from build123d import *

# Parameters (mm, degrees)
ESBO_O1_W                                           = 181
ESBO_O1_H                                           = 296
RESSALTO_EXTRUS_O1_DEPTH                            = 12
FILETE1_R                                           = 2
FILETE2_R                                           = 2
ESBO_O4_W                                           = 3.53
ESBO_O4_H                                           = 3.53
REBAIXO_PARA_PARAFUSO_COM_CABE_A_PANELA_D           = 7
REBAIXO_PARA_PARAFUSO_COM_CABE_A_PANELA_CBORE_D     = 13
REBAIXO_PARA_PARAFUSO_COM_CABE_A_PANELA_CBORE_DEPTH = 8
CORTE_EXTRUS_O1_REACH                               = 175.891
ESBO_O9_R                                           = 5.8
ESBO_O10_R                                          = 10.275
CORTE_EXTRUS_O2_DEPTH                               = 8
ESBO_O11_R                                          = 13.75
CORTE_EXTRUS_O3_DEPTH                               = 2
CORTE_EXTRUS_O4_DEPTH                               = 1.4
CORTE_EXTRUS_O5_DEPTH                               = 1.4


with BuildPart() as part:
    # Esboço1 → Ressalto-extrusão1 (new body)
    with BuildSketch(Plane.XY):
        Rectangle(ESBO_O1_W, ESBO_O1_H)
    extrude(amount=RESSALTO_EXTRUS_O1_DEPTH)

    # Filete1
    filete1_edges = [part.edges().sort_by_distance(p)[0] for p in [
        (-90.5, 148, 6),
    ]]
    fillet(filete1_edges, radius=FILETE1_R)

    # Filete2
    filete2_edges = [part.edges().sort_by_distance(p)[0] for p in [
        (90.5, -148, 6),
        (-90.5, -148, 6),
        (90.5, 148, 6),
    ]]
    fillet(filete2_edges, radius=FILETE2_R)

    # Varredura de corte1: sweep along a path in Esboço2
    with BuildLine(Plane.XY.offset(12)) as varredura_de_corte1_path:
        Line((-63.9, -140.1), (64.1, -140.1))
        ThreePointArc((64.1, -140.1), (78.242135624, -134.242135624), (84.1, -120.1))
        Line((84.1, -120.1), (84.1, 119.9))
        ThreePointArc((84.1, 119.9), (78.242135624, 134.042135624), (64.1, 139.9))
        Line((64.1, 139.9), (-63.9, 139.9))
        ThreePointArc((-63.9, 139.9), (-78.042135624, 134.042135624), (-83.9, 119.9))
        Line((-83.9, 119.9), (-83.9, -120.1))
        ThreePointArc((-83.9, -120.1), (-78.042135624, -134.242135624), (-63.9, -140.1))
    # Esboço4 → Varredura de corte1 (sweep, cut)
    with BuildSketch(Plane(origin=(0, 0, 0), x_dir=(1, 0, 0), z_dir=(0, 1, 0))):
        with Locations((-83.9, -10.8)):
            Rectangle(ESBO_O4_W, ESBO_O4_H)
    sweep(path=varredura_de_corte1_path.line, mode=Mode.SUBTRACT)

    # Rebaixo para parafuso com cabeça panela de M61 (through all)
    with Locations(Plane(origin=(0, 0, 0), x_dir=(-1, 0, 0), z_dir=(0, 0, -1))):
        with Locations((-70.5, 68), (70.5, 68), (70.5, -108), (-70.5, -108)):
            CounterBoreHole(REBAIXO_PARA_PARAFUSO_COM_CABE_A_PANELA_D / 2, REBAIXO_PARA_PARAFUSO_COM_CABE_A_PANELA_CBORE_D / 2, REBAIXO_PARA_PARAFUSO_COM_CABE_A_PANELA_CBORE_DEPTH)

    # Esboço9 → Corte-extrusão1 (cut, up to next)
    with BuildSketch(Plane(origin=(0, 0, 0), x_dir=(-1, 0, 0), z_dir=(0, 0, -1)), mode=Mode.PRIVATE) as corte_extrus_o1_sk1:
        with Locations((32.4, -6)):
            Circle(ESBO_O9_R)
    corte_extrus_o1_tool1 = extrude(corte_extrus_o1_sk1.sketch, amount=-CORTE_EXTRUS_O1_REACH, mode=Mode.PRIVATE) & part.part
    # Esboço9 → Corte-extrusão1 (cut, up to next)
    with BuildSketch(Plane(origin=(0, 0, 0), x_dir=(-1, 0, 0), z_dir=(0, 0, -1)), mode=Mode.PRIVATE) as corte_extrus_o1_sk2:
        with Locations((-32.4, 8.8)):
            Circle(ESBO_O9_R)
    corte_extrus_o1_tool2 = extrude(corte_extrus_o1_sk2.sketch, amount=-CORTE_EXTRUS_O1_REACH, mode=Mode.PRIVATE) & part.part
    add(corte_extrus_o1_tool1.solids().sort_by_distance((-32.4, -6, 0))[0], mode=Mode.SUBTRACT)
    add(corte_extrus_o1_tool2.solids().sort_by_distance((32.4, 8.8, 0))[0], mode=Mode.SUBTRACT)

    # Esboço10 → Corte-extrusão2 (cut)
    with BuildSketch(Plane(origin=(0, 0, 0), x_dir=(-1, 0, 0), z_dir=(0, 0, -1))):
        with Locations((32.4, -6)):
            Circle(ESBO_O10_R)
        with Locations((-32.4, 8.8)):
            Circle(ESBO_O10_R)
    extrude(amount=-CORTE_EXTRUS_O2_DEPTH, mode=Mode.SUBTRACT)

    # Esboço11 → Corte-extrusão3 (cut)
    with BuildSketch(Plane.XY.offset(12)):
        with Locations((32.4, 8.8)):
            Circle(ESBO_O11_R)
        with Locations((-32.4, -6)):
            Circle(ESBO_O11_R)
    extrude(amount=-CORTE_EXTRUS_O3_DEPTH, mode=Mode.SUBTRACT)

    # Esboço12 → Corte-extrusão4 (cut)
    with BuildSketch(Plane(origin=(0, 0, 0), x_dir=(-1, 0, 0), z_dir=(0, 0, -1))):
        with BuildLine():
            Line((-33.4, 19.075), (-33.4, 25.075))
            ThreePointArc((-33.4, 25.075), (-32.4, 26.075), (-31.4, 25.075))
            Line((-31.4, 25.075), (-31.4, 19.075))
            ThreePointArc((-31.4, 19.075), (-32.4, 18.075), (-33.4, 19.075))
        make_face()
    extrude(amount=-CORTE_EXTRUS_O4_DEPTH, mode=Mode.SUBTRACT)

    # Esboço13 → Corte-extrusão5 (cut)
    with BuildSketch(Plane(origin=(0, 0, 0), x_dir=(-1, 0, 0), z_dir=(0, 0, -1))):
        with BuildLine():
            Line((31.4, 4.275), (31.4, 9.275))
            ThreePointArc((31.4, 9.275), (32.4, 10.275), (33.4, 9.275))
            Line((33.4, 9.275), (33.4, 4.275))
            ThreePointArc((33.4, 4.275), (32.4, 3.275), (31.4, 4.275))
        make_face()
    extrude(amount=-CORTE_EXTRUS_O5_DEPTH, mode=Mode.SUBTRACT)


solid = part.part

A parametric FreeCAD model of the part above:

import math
import FreeCAD as App
import Part
import Sketcher

V = App.Vector
Q = App.Units.Quantity


def edges_at(feature, points):
    """Names of the edges that pass closest to the given points."""
    edges = feature.Shape.Edges
    near = lambda p: min(range(len(edges)), key=lambda i: edges[i].distToShape(Part.Vertex(*p))[0])
    return sorted({f"Edge{near(p) + 1}" for p in points})

doc = App.newDocument("Part")
body = doc.addObject("PartDesign::Body", "Body")

sketch1 = body.newObject("Sketcher::SketchObject", "Sketch")
sketch1.AttachmentSupport = (doc.getObject("XY_Plane"), [""])
sketch1.MapMode = "FlatFace"
sketch1.addGeometry(Part.LineSegment(V(-90, 148, 0), V(-90, -148, 0)), False)
sketch1.addGeometry(Part.LineSegment(V(-90, -148, 0), V(90, -148, 0)), False)
sketch1.addGeometry(Part.LineSegment(V(90, -148, 0), V(90, 148, 0)), False)
sketch1.addGeometry(Part.LineSegment(V(90, 148, 0), V(-90, 148, 0)), False)
sketch1.addConstraint(Sketcher.Constraint("Coincident", 0, 2, 1, 1))
sketch1.addConstraint(Sketcher.Constraint("Coincident", 1, 2, 2, 1))
sketch1.addConstraint(Sketcher.Constraint("Coincident", 2, 2, 3, 1))
sketch1.addConstraint(Sketcher.Constraint("Coincident", 3, 2, 0, 1))
sketch1.addConstraint(Sketcher.Constraint("Vertical", 0))
sketch1.addConstraint(Sketcher.Constraint("Horizontal", 1))
sketch1.addConstraint(Sketcher.Constraint("Vertical", 2))
sketch1.addConstraint(Sketcher.Constraint("Horizontal", 3))
sketch1.addConstraint(Sketcher.Constraint("Symmetric", 0, 2, 2, 2, -1, 1))
sketch1.addConstraint(Sketcher.Constraint("DistanceX", 1, 1, 1, 2, Q("181 mm")))
sketch1.addConstraint(Sketcher.Constraint("DistanceY", 0, 2, 0, 1, Q("296 mm")))
pad1 = body.newObject("PartDesign::Pad", "Pad")
pad1.Profile = sketch1
pad1.Length = 12
doc.recompute()

fillet = body.newObject("PartDesign::Fillet", "Fillet")
fillet.Base = (pad1, edges_at(pad1, [(-90.5, 148, 6)]))
fillet.Radius = 2
doc.recompute()

fillet2 = body.newObject("PartDesign::Fillet", "Fillet001")
fillet2.Base = (fillet, edges_at(fillet, [(90.5, -148, 6), (-90.5, -148, 6), (90.5, 148, 6)]))
fillet2.Radius = 2

sketch2 = body.newObject("Sketcher::SketchObject", "Sketch001")
sketch2.AttachmentSupport = (doc.getObject("XZ_Plane"), [""])
sketch2.MapMode = "FlatFace"
sketch2.addGeometry(Part.LineSegment(V(-85.7, 9, 0), V(-85.7, 12.6, 0)), False)
sketch2.addGeometry(Part.LineSegment(V(-85.7, 12.6, 0), V(-82.1, 12.6, 0)), False)
sketch2.addGeometry(Part.LineSegment(V(-82.1, 12.6, 0), V(-82.1, 9, 0)), False)
sketch2.addGeometry(Part.LineSegment(V(-82.1, 9, 0), V(-85.7, 9, 0)), False)
sketch2.addConstraint(Sketcher.Constraint("Coincident", 0, 2, 1, 1))
sketch2.addConstraint(Sketcher.Constraint("Coincident", 1, 2, 2, 1))
sketch2.addConstraint(Sketcher.Constraint("Coincident", 2, 2, 3, 1))
sketch2.addConstraint(Sketcher.Constraint("Coincident", 3, 2, 0, 1))
sketch2.addConstraint(Sketcher.Constraint("Vertical", 0))
sketch2.addConstraint(Sketcher.Constraint("Horizontal", 1))
sketch2.addConstraint(Sketcher.Constraint("Vertical", 2))
sketch2.addConstraint(Sketcher.Constraint("Horizontal", 3))
sketch2.addConstraint(Sketcher.Constraint("Equal", 3, 0))
sketch2.addConstraint(Sketcher.Constraint("DistanceX", 1, 1, 1, 2, Q("3.53 mm")))
sketch2.addConstraint(Sketcher.Constraint("DistanceX", 0, 2, -1, 1, Q("85.665 mm")))
sketch2.addConstraint(Sketcher.Constraint("DistanceY", -1, 1, 0, 2, Q("12.565 mm")))

sketch3 = body.newObject("Sketcher::SketchObject", "Sketch002")
sketch3.AttachmentSupport = (doc.getObject("XY_Plane"), [""])
sketch3.MapMode = "FlatFace"
sketch3.AttachmentOffset = App.Placement(V(0, 0, 12), App.Rotation())
sketch3.addGeometry(Part.LineSegment(V(-64, -140, 0), V(64, -140, 0)), False)
sketch3.addGeometry(Part.ArcOfCircle(Part.Circle(V(64, -120, 0), V(0, 0, 1), 20), math.radians(-90), math.radians(0)), False)
sketch3.addGeometry(Part.LineSegment(V(84, -120, 0), V(84, 120, 0)), False)
sketch3.addGeometry(Part.ArcOfCircle(Part.Circle(V(64, 120, 0), V(0, 0, 1), 20), math.radians(0), math.radians(90)), False)
sketch3.addGeometry(Part.LineSegment(V(64, 140, 0), V(-64, 140, 0)), False)
sketch3.addGeometry(Part.ArcOfCircle(Part.Circle(V(-64, 120, 0), V(0, 0, 1), 20), math.radians(90), math.radians(180)), False)
sketch3.addGeometry(Part.LineSegment(V(-84, 120, 0), V(-84, -120, 0)), False)
sketch3.addGeometry(Part.ArcOfCircle(Part.Circle(V(-64, -120, 0), V(0, 0, 1), 20), math.radians(180), math.radians(270)), False)
sketch3.addConstraint(Sketcher.Constraint("Tangent", 0, 2, 1, 1))
sketch3.addConstraint(Sketcher.Constraint("Tangent", 1, 2, 2, 1))
sketch3.addConstraint(Sketcher.Constraint("Tangent", 2, 2, 3, 1))
sketch3.addConstraint(Sketcher.Constraint("Tangent", 3, 2, 4, 1))
sketch3.addConstraint(Sketcher.Constraint("Tangent", 4, 2, 5, 1))
sketch3.addConstraint(Sketcher.Constraint("Tangent", 5, 2, 6, 1))
sketch3.addConstraint(Sketcher.Constraint("Tangent", 6, 2, 7, 1))
sketch3.addConstraint(Sketcher.Constraint("Tangent", 7, 2, 0, 1))
sketch3.addConstraint(Sketcher.Constraint("Horizontal", 0))
sketch3.addConstraint(Sketcher.Constraint("Vertical", 2))
sketch3.addConstraint(Sketcher.Constraint("Horizontal", 4))
sketch3.addConstraint(Sketcher.Constraint("Vertical", 6))
sketch3.addConstraint(Sketcher.Constraint("Equal", 1, 3))
sketch3.addConstraint(Sketcher.Constraint("Equal", 3, 5))
sketch3.addConstraint(Sketcher.Constraint("Equal", 5, 7))
sketch3.addConstraint(Sketcher.Constraint("Radius", 1, Q("20 mm")))
sketch3.addConstraint(Sketcher.Constraint("DistanceX", 0, 1, 0, 2, Q("128 mm")))
sketch3.addConstraint(Sketcher.Constraint("DistanceY", 2, 1, 2, 2, Q("240 mm")))
sketch3.addConstraint(Sketcher.Constraint("DistanceX", -1, 1, 1, 3, Q("64.1 mm")))
sketch3.addConstraint(Sketcher.Constraint("DistanceY", 1, 3, -1, 1, Q("120.1 mm")))
doc.recompute()

subtractivepipe = body.newObject("PartDesign::SubtractivePipe", "SubtractivePipe")
subtractivepipe.Profile = sketch2
subtractivepipe.Spine = (sketch3, ["Edge1", "Edge2", "Edge3", "Edge4", "Edge5", "Edge6", "Edge7", "Edge8"])

sketch4 = body.newObject("Sketcher::SketchObject", "Sketch003")
sketch4.AttachmentSupport = (doc.getObject("XY_Plane"), [""])
sketch4.MapMode = "FlatFace"
sketch4.addGeometry(Part.Circle(V(70.5, 68, 0), V(0, 0, 1), 3.5), False)
sketch4.addGeometry(Part.Circle(V(-70.5, 68, 0), V(0, 0, 1), 3.5), False)
sketch4.addGeometry(Part.Circle(V(-70.5, -108, 0), V(0, 0, 1), 3.5), False)
sketch4.addGeometry(Part.Circle(V(70.5, -108, 0), V(0, 0, 1), 3.5), False)
sketch4.addConstraint(Sketcher.Constraint("Equal", 0, 1))
sketch4.addConstraint(Sketcher.Constraint("Equal", 1, 2))
sketch4.addConstraint(Sketcher.Constraint("Equal", 2, 3))
sketch4.addConstraint(Sketcher.Constraint("Symmetric", 0, 3, 1, 3, -2))
sketch4.addConstraint(Sketcher.Constraint("Symmetric", 2, 3, 3, 3, -2))
sketch4.addConstraint(Sketcher.Constraint("Vertical", 1, 3, 2, 3))
sketch4.addConstraint(Sketcher.Constraint("Diameter", 0, Q("7 mm")))
sketch4.addConstraint(Sketcher.Constraint("DistanceY", -1, 1, 0, 3, Q("68 mm")))
sketch4.addConstraint(Sketcher.Constraint("DistanceY", 2, 3, -1, 1, Q("108 mm")))
sketch4.addConstraint(Sketcher.Constraint("DistanceX", 1, 3, 0, 3, Q("141 mm")))
doc.recompute()
hole = body.newObject("PartDesign::Hole", "Hole")
hole.Profile = sketch4
hole.ThreadType = "None"
hole.Diameter = 7
hole.DepthType = "ThroughAll"
hole.HoleCutType = "Counterbore"
hole.HoleCutDiameter = 13
hole.HoleCutDepth = 8
hole.Reversed = True

sketch5 = body.newObject("Sketcher::SketchObject", "Sketch004")
sketch5.AttachmentSupport = (doc.getObject("XY_Plane"), [""])
sketch5.MapMode = "FlatFace"
sketch5.addGeometry(Part.Circle(V(-32, -6, 0), V(0, 0, 1), 6), False)
sketch5.addConstraint(Sketcher.Constraint("Diameter", 0, Q("11.6 mm")))
sketch5.addConstraint(Sketcher.Constraint("DistanceY", 0, 3, -1, 1, Q("6 mm")))
sketch5.addConstraint(Sketcher.Constraint("DistanceX", 0, 3, -1, 1, Q("32.4 mm")))
pocket1 = body.newObject("PartDesign::Pocket", "Pocket")
pocket1.Profile = sketch5
pocket1.Type = "UpToFirst"
pocket1.Reversed = True

sketch6 = body.newObject("Sketcher::SketchObject", "Sketch005")
sketch6.AttachmentSupport = (doc.getObject("XY_Plane"), [""])
sketch6.MapMode = "FlatFace"
sketch6.addGeometry(Part.Circle(V(32, 9, 0), V(0, 0, 1), 6), False)
sketch6.addConstraint(Sketcher.Constraint("Diameter", 0, Q("11.6 mm")))
sketch6.addConstraint(Sketcher.Constraint("DistanceX", -1, 1, 0, 3, Q("32.4 mm")))
sketch6.addConstraint(Sketcher.Constraint("DistanceY", -1, 1, 0, 3, Q("8.8 mm")))
pocket2 = body.newObject("PartDesign::Pocket", "Pocket001")
pocket2.Profile = sketch6
pocket2.Type = "UpToFirst"
pocket2.Reversed = True

sketch7 = body.newObject("Sketcher::SketchObject", "Sketch006")
sketch7.AttachmentSupport = (doc.getObject("XY_Plane"), [""])
sketch7.MapMode = "FlatFace"
sketch7.addGeometry(Part.Circle(V(-32, -6, 0), V(0, 0, 1), 10), False)
sketch7.addGeometry(Part.Circle(V(32, 9, 0), V(0, 0, 1), 10), False)
sketch7.addConstraint(Sketcher.Constraint("Equal", 0, 1))
sketch7.addConstraint(Sketcher.Constraint("Diameter", 0, Q("20.55 mm")))
sketch7.addConstraint(Sketcher.Constraint("DistanceY", 0, 3, -1, 1, Q("6 mm")))
sketch7.addConstraint(Sketcher.Constraint("DistanceX", 0, 3, -1, 1, Q("32.4 mm")))
sketch7.addConstraint(Sketcher.Constraint("DistanceX", -1, 1, 1, 3, Q("32.4 mm")))
sketch7.addConstraint(Sketcher.Constraint("DistanceY", -1, 1, 1, 3, Q("8.8 mm")))
pocket3 = body.newObject("PartDesign::Pocket", "Pocket002")
pocket3.Profile = sketch7
pocket3.Length = 8
pocket3.Reversed = True

sketch8 = body.newObject("Sketcher::SketchObject", "Sketch007")
sketch8.AttachmentSupport = (doc.getObject("XY_Plane"), [""])
sketch8.MapMode = "FlatFace"
sketch8.AttachmentOffset = App.Placement(V(0, 0, 12), App.Rotation())
sketch8.addGeometry(Part.Circle(V(32, 9, 0), V(0, 0, 1), 14), False)
sketch8.addGeometry(Part.Circle(V(-32, -6, 0), V(0, 0, 1), 14), False)
sketch8.addConstraint(Sketcher.Constraint("Equal", 0, 1))
sketch8.addConstraint(Sketcher.Constraint("Diameter", 0, Q("27.5 mm")))
sketch8.addConstraint(Sketcher.Constraint("DistanceY", 1, 3, -1, 1, Q("6 mm")))
sketch8.addConstraint(Sketcher.Constraint("DistanceX", -1, 1, 0, 3, Q("32.4 mm")))
sketch8.addConstraint(Sketcher.Constraint("DistanceY", -1, 1, 0, 3, Q("8.8 mm")))
sketch8.addConstraint(Sketcher.Constraint("DistanceX", 1, 3, -1, 1, Q("32.4 mm")))
pocket4 = body.newObject("PartDesign::Pocket", "Pocket003")
pocket4.Profile = sketch8
pocket4.Length = 2

sketch9 = body.newObject("Sketcher::SketchObject", "Sketch008")
sketch9.AttachmentSupport = (doc.getObject("XY_Plane"), [""])
sketch9.MapMode = "FlatFace"
sketch9.addGeometry(Part.LineSegment(V(33.4, 25.1, 0), V(33.4, 19.1, 0)), False)
sketch9.addGeometry(Part.ArcOfCircle(Part.Circle(V(32.4, 19.1, 0), V(0, 0, 1), 1), math.radians(180), math.radians(360)), False)
sketch9.addGeometry(Part.LineSegment(V(31.4, 19.1, 0), V(31.4, 25.1, 0)), False)
sketch9.addGeometry(Part.ArcOfCircle(Part.Circle(V(32.4, 25.1, 0), V(0, 0, 1), 1), math.radians(0), math.radians(180)), False)
sketch9.addConstraint(Sketcher.Constraint("Tangent", 0, 2, 1, 2))
sketch9.addConstraint(Sketcher.Constraint("Tangent", 1, 1, 2, 1))
sketch9.addConstraint(Sketcher.Constraint("Tangent", 2, 2, 3, 2))
sketch9.addConstraint(Sketcher.Constraint("Tangent", 3, 1, 0, 1))
sketch9.addConstraint(Sketcher.Constraint("Vertical", 0))
sketch9.addConstraint(Sketcher.Constraint("Vertical", 2))
sketch9.addConstraint(Sketcher.Constraint("Radius", 1, Q("1 mm")))
sketch9.addConstraint(Sketcher.Constraint("DistanceY", 0, 2, 0, 1, Q("6 mm")))
sketch9.addConstraint(Sketcher.Constraint("DistanceX", -1, 1, 1, 3, Q("32.4 mm")))
sketch9.addConstraint(Sketcher.Constraint("DistanceY", -1, 1, 1, 3, Q("19.075 mm")))
pocket5 = body.newObject("PartDesign::Pocket", "Pocket004")
pocket5.Profile = sketch9
pocket5.Length = 1.4
pocket5.Reversed = True

sketch10 = body.newObject("Sketcher::SketchObject", "Sketch009")
sketch10.AttachmentSupport = (doc.getObject("XY_Plane"), [""])
sketch10.MapMode = "FlatFace"
sketch10.addGeometry(Part.LineSegment(V(-31.4, 9.3, 0), V(-31.4, 4.3, 0)), False)
sketch10.addGeometry(Part.ArcOfCircle(Part.Circle(V(-32.4, 4.3, 0), V(0, 0, 1), 1), math.radians(180), math.radians(360)), False)
sketch10.addGeometry(Part.LineSegment(V(-33.4, 4.3, 0), V(-33.4, 9.3, 0)), False)
sketch10.addGeometry(Part.ArcOfCircle(Part.Circle(V(-32.4, 9.3, 0), V(0, 0, 1), 1), math.radians(0), math.radians(180)), False)
sketch10.addConstraint(Sketcher.Constraint("Tangent", 0, 2, 1, 2))
sketch10.addConstraint(Sketcher.Constraint("Tangent", 1, 1, 2, 1))
sketch10.addConstraint(Sketcher.Constraint("Tangent", 2, 2, 3, 2))
sketch10.addConstraint(Sketcher.Constraint("Tangent", 3, 1, 0, 1))
sketch10.addConstraint(Sketcher.Constraint("Vertical", 0))
sketch10.addConstraint(Sketcher.Constraint("Vertical", 2))
sketch10.addConstraint(Sketcher.Constraint("Radius", 1, Q("1 mm")))
sketch10.addConstraint(Sketcher.Constraint("DistanceY", 0, 2, 0, 1, Q("5 mm")))
sketch10.addConstraint(Sketcher.Constraint("DistanceX", 1, 3, -1, 1, Q("32.4 mm")))
sketch10.addConstraint(Sketcher.Constraint("DistanceY", -1, 1, 1, 3, Q("4.275 mm")))
pocket6 = body.newObject("PartDesign::Pocket", "Pocket005")
pocket6.Profile = sketch10
pocket6.Length = 1.4
pocket6.Reversed = True

doc.recompute()
